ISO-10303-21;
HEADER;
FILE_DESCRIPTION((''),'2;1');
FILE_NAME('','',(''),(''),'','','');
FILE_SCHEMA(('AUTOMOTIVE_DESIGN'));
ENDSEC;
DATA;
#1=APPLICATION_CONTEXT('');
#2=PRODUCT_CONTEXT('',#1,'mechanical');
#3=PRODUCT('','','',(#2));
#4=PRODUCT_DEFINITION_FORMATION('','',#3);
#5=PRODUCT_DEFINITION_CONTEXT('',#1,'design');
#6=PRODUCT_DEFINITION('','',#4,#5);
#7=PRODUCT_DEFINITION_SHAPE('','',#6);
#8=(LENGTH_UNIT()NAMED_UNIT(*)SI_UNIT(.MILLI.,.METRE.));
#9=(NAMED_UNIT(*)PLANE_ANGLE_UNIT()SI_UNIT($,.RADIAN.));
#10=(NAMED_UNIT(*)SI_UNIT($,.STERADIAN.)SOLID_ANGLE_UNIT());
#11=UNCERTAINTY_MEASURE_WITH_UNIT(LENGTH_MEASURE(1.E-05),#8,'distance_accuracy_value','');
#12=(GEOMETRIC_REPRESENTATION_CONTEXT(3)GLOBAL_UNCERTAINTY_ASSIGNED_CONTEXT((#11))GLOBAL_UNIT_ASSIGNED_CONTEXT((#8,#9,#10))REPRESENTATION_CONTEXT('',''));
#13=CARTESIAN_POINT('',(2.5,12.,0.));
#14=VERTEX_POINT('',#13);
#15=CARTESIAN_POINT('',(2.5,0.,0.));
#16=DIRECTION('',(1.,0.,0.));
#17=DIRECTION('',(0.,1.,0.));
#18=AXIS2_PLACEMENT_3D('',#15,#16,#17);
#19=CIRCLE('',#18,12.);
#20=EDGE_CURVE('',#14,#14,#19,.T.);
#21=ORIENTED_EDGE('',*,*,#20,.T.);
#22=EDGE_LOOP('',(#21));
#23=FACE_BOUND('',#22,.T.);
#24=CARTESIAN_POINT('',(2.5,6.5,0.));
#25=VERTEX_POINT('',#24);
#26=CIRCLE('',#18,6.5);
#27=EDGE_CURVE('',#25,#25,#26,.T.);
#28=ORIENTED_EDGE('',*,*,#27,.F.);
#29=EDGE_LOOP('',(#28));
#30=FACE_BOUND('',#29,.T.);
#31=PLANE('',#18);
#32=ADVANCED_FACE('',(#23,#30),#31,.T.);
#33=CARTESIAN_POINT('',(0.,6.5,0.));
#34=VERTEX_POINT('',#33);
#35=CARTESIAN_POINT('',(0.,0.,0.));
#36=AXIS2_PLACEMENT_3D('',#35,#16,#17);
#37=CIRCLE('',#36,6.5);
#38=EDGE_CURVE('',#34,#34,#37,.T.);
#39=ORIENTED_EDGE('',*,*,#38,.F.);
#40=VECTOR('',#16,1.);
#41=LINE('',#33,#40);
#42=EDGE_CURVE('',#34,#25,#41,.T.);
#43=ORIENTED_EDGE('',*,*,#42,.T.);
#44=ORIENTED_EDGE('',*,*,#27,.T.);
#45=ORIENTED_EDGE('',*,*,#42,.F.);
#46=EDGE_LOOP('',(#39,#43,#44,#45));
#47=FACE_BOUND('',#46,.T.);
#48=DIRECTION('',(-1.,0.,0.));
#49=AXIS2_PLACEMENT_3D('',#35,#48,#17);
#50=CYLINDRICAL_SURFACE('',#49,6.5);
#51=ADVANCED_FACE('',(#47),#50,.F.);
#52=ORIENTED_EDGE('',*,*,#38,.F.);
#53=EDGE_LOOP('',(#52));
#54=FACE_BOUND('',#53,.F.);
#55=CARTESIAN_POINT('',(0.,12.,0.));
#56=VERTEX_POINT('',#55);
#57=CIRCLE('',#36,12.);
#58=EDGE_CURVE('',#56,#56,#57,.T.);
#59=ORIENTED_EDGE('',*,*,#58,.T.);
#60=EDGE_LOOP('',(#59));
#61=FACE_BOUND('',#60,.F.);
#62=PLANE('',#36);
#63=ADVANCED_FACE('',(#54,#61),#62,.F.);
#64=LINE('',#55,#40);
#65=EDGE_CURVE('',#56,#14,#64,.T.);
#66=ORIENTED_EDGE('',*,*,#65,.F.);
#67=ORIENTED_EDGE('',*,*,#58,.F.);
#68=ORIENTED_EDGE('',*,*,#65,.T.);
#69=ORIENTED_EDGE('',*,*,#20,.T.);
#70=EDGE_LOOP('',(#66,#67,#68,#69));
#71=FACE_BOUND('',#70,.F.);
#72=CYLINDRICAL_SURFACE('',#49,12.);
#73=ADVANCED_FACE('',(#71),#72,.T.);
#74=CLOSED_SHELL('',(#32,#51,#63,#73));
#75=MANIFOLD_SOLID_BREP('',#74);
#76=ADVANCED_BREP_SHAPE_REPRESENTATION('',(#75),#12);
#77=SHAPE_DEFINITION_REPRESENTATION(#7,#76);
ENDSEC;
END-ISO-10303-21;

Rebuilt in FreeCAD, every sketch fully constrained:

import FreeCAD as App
import Part
import Sketcher

V = App.Vector
Q = App.Units.Quantity

doc = App.newDocument("Part")
body = doc.addObject("PartDesign::Body", "Body")

sketch1 = body.newObject("Sketcher::SketchObject", "Sketch")
sketch1.AttachmentSupport = (doc.getObject("YZ_Plane"), [""])
sketch1.MapMode = "FlatFace"
sketch1.addGeometry(Part.Circle(V(0, 0, 0), V(0, 0, 1), 12), False)
sketch1.addGeometry(Part.Circle(V(0, 0, 0), V(0, 0, 1), 6.5), False)
sketch1.addConstraint(Sketcher.Constraint("Coincident", 0, 3, -1, 1))
sketch1.addConstraint(Sketcher.Constraint("Coincident", 1, 3, -1, 1))
sketch1.addConstraint(Sketcher.Constraint("Diameter", 0, Q("24 mm")))
sketch1.addConstraint(Sketcher.Constraint("Diameter", 1, Q("13 mm")))
pad1 = body.newObject("PartDesign::Pad", "Pad")
pad1.Profile = sketch1
pad1.Length = 2.5

doc.recompute()
